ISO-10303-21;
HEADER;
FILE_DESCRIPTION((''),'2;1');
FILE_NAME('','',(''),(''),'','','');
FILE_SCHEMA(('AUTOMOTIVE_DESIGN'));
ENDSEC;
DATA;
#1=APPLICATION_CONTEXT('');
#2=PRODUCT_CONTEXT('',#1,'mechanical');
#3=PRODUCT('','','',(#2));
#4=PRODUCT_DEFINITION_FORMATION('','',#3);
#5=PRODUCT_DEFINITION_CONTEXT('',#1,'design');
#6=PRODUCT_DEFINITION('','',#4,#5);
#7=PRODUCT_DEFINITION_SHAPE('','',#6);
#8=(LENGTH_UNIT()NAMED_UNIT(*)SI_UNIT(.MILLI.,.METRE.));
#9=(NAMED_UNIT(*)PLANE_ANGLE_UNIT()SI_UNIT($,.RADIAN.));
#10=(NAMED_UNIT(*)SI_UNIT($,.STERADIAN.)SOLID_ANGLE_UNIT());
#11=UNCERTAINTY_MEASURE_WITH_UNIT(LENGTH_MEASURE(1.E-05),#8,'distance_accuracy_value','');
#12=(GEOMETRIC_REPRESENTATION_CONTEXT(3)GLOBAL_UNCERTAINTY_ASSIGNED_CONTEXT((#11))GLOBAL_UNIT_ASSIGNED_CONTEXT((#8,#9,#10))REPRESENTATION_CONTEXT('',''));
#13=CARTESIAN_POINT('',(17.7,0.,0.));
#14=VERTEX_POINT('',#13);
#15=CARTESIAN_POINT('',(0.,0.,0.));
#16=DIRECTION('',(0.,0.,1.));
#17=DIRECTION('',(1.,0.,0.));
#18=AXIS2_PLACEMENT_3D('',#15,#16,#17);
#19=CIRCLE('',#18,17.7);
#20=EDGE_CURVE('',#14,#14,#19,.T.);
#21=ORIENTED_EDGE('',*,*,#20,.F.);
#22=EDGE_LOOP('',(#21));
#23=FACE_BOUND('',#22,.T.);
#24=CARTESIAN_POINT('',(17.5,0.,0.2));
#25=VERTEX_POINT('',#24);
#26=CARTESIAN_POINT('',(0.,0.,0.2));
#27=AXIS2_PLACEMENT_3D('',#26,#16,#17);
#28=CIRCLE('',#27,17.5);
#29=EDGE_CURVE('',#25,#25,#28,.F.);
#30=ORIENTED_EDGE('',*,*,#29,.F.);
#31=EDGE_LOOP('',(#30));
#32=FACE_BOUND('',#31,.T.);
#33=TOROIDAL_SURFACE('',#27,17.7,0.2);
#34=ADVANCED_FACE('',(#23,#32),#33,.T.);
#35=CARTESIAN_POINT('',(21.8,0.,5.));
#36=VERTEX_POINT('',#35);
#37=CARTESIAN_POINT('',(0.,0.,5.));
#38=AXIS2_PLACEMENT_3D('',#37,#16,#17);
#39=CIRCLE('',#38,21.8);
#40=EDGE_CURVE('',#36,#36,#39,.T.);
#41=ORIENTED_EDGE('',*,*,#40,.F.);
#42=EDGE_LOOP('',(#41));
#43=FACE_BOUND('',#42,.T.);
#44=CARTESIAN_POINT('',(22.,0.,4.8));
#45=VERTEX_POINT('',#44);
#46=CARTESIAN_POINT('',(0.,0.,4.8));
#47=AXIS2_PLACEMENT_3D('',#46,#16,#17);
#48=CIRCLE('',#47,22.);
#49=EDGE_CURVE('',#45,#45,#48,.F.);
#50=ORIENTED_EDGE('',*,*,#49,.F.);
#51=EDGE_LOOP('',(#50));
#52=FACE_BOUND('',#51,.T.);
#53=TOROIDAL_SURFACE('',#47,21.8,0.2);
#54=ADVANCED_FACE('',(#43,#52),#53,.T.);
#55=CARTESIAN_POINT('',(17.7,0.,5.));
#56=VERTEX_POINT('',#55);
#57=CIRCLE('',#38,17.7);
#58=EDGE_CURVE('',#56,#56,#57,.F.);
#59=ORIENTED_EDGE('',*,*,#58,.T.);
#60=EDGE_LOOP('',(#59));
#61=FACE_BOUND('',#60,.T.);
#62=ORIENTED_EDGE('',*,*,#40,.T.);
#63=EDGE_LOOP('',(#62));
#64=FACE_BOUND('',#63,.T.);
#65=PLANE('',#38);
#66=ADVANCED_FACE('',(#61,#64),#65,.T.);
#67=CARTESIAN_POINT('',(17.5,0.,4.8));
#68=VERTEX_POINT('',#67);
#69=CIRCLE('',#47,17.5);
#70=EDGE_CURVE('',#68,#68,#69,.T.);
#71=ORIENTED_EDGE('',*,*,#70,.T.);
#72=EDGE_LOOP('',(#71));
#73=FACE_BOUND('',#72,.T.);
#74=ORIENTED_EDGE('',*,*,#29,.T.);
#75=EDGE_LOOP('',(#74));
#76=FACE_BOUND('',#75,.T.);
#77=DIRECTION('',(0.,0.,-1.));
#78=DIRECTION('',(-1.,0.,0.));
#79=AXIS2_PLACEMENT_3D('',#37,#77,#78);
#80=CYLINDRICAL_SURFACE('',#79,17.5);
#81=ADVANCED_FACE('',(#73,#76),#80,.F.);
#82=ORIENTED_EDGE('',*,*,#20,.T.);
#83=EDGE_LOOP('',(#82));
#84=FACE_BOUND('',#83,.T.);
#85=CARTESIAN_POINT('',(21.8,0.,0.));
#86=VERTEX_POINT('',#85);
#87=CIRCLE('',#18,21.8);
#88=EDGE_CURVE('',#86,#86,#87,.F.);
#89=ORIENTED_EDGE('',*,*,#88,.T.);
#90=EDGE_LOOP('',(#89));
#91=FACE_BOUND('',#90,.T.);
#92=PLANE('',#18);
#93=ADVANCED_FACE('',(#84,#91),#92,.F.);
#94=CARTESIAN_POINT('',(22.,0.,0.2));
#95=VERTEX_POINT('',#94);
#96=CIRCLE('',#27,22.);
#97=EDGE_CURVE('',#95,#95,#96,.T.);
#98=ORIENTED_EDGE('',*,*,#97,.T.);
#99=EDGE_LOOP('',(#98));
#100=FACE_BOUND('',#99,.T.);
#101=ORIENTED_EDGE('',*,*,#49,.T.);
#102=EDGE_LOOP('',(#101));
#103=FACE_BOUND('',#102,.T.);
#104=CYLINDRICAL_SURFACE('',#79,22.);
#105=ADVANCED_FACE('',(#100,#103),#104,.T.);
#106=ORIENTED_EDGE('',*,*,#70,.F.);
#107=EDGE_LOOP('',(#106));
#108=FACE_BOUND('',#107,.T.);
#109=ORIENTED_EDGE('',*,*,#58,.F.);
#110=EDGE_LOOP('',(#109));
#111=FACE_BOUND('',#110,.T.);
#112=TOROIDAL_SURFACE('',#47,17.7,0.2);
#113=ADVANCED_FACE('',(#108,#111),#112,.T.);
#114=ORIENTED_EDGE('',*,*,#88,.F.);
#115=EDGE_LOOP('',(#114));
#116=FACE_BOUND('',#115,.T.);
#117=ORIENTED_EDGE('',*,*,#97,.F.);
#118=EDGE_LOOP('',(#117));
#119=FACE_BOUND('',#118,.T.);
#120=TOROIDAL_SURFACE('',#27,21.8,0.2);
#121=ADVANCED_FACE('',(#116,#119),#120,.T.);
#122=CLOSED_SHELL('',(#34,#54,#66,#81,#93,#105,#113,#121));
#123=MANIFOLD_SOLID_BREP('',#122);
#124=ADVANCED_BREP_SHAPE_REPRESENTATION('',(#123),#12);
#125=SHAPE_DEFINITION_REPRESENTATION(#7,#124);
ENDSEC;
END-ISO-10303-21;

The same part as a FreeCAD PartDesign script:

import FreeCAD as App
import Part
import Sketcher
from FreeCAD import Vector
Q = App.Units.Quantity


def edges_at(feature, points):
    """Names of the edges that pass closest to the given points."""
    edges = feature.Shape.Edges
    near = lambda p: min(range(len(edges)), key=lambda i: edges[i].distToShape(Part.Vertex(*p))[0])
    return sorted({f"Edge{near(p) + 1}" for p in points})

doc = App.newDocument("Part")
body = doc.addObject("PartDesign::Body", "Body")

# Sketch on XY plane
sketch1 = body.newObject("Sketcher::SketchObject", "Sketch")
sketch1.AttachmentSupport = (doc.getObject("XY_Plane"), [""])
sketch1.MapMode = "FlatFace"
sketch1.addGeometry([
    Part.Circle(Vector(0, 0, 0), Vector(0, 0, 1), 22),
    Part.Circle(Vector(0, 0, 0), Vector(0, 0, 1), 18),
], False)
sketch1.addConstraint([
    Sketcher.Constraint("Coincident", 0, 3, -1, 1),
    Sketcher.Constraint("Coincident", 1, 3, -1, 1),
    Sketcher.Constraint("Diameter", 0, Q("44 mm")),
    Sketcher.Constraint("Diameter", 1, Q("35 mm")),
])
pad1 = body.newObject("PartDesign::Pad", "Pad")
pad1.Profile = sketch1
pad1.Length = 5
doc.recompute()

fillet = body.newObject("PartDesign::Fillet", "Fillet")
fillet.Base = (pad1, edges_at(pad1, [
    (-22, 0, 0),
    (-22, 0, 5),
    (-17.5, 0, 0),
    (-17.5, 0, 5),
]))
fillet.Radius = 0.2

doc.recompute()
